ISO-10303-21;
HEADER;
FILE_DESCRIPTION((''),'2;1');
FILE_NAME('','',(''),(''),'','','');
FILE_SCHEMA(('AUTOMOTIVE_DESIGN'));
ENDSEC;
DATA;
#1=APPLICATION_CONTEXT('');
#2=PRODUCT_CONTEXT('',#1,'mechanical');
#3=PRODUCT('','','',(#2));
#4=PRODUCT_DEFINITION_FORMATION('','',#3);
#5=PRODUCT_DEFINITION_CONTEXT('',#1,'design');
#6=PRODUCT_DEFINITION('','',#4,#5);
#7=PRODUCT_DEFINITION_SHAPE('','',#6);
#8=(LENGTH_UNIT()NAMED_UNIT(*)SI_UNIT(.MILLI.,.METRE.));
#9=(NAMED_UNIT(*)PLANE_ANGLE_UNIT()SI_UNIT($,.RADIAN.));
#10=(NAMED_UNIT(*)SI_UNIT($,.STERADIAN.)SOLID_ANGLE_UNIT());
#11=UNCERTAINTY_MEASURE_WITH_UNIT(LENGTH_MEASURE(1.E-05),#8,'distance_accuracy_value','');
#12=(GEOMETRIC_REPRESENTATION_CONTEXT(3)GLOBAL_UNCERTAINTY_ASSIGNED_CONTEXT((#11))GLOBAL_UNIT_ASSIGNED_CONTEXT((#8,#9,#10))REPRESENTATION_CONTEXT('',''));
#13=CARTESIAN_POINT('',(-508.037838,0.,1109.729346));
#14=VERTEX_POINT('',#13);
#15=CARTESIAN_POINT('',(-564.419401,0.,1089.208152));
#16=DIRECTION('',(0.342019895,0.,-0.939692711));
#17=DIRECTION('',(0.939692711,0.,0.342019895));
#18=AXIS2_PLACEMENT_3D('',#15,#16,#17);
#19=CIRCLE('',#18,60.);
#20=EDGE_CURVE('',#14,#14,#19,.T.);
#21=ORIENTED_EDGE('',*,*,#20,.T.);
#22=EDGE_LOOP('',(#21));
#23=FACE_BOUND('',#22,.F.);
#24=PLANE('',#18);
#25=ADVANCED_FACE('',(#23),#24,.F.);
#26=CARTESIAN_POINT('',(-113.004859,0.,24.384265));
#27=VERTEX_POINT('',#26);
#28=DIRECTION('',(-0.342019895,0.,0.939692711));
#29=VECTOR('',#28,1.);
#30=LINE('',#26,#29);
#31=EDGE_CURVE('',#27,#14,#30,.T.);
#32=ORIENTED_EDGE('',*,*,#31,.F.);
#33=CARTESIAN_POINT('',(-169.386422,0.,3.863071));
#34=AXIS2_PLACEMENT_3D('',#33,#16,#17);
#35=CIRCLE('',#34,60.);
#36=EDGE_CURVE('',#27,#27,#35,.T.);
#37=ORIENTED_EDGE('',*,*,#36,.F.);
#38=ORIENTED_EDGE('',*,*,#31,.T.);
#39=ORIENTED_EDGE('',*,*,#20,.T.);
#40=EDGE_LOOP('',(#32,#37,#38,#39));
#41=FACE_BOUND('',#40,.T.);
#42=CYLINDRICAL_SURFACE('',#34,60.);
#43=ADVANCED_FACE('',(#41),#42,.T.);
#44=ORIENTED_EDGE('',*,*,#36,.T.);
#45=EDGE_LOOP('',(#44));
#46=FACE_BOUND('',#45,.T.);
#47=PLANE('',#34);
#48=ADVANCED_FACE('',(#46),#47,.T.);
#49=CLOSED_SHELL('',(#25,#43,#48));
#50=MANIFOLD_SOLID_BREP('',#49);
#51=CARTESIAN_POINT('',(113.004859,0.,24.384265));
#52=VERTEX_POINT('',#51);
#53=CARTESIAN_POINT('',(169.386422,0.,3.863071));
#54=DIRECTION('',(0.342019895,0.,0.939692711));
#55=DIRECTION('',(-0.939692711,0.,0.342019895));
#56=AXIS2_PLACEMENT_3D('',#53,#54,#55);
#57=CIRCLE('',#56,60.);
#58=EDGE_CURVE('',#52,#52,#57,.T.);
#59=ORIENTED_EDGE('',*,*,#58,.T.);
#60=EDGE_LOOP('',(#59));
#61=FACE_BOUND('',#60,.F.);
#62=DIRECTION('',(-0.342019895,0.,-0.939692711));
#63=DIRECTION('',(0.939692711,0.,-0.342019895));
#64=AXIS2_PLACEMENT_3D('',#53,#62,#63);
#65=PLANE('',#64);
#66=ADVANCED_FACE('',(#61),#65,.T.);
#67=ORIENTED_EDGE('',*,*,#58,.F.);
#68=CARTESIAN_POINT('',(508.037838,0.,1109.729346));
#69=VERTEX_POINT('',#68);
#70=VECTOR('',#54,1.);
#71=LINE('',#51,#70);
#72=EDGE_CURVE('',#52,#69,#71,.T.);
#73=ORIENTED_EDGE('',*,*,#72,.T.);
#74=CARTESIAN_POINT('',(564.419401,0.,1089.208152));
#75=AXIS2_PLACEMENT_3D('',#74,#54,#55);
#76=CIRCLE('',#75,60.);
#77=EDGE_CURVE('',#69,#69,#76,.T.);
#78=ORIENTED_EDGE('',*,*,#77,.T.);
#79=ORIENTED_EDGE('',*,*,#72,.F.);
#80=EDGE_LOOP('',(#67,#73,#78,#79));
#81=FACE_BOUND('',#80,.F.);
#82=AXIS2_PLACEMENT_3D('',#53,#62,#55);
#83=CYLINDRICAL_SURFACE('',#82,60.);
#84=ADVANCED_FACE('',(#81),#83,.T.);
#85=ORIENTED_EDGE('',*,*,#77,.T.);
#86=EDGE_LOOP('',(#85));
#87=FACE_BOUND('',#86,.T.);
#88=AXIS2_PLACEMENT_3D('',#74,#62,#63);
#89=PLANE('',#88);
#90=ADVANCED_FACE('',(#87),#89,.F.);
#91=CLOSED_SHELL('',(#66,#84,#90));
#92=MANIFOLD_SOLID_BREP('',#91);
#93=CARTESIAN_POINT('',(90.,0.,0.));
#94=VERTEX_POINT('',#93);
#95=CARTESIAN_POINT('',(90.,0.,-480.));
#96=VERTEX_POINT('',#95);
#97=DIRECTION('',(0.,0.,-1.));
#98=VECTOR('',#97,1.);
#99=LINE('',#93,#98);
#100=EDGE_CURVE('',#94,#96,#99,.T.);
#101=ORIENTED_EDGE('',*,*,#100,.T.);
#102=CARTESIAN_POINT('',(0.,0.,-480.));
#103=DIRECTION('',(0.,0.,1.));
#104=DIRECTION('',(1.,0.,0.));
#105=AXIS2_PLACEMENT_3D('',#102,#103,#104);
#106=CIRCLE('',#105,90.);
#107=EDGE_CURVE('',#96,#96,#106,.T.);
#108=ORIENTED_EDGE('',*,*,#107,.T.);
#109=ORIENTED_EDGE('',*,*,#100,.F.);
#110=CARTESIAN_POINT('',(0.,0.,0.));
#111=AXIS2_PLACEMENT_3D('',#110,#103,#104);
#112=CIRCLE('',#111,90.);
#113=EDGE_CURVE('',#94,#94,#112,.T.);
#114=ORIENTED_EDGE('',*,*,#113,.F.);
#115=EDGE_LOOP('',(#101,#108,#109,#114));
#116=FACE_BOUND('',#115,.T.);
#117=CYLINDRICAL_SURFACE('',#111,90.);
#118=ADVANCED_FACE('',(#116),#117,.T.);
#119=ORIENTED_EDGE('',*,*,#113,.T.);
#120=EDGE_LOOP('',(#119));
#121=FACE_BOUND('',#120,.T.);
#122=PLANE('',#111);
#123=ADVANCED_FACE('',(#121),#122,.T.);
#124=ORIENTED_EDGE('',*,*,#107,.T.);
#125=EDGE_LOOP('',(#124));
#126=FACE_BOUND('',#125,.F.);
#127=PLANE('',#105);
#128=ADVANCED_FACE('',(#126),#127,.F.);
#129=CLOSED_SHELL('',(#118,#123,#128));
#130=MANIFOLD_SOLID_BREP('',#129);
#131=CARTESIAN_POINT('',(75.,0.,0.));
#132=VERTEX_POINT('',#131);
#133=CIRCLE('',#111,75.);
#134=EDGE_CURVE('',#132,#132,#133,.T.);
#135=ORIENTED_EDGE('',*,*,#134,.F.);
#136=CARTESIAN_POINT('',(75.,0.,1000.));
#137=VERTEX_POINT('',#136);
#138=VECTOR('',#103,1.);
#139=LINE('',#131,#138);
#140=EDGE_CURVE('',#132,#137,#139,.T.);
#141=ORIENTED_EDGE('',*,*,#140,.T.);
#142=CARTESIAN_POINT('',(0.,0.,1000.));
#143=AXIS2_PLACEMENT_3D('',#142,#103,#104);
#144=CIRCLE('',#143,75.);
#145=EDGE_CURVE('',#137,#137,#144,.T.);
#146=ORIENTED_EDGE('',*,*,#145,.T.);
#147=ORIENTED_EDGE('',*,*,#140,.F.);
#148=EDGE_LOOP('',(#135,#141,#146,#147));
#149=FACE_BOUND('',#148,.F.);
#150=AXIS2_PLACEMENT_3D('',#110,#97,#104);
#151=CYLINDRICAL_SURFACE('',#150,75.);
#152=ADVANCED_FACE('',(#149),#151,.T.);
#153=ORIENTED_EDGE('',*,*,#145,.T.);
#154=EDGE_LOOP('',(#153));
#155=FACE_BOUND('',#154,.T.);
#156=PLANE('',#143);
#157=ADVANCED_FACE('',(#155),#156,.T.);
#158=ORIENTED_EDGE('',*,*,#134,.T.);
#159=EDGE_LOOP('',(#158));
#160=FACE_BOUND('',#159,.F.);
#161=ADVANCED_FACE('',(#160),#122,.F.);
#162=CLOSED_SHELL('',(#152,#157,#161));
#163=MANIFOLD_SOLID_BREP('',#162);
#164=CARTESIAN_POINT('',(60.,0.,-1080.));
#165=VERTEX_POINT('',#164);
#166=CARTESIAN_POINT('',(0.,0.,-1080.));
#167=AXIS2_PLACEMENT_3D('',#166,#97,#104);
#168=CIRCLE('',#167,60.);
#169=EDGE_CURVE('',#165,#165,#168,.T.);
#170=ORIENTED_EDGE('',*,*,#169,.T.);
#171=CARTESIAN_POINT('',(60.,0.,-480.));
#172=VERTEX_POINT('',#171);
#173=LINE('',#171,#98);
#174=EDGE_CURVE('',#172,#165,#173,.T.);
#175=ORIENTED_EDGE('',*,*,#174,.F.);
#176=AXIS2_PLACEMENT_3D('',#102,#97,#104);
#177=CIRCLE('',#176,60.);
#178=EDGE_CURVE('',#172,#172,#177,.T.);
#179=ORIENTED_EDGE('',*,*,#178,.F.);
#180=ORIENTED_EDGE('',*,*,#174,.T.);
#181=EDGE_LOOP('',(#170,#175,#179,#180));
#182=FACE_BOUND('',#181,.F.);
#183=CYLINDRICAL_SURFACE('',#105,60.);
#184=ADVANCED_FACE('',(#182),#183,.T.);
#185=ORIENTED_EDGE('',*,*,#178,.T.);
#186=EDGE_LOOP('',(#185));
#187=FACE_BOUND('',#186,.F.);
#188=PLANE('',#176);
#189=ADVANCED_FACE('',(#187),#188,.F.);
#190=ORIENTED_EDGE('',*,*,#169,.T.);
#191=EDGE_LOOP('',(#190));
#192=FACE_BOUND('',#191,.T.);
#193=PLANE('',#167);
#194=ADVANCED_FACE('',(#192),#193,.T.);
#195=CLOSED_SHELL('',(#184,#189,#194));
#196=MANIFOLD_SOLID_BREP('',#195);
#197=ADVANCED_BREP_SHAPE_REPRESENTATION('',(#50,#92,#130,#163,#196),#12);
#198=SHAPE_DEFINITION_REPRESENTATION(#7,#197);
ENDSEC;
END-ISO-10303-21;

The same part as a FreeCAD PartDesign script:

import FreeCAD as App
import Part
import Sketcher

doc = App.newDocument("Part")
body = doc.addObject("PartDesign::Body", "Body")

# Sketch on XY plane
sketch1 = doc.addObject("Sketcher::SketchObject", "Sketch")
body.addObject(sketch1)
sketch1.AttachmentSupport = (doc.XY_Plane, [""])
sketch1.MapMode = "FlatFace"
sketch1.addGeometry(Part.Circle(App.Vector(0, 0, 0), App.Vector(0, 0, 1), 75), False)
sketch1.addConstraint(Sketcher.Constraint("Coincident", 0, 3, -1, 1))
sketch1.addConstraint(Sketcher.Constraint("Diameter", 0, 150.0))
pad1 = doc.addObject("PartDesign::Pad", "Pad")
body.addObject(pad1)
pad1.Profile = sketch1
pad1.Length = 1000
body2 = doc.addObject("PartDesign::Body", "Body001")

# Sketch on XY plane
sketch2 = doc.addObject("Sketcher::SketchObject", "Sketch001")
body2.addObject(sketch2)
sketch2.AttachmentSupport = (doc.getObject("XY_Plane001"), [""])
sketch2.MapMode = "FlatFace"
sketch2.addGeometry(Part.Circle(App.Vector(0, 0, 0), App.Vector(0, 0, 1), 90), False)
sketch2.addConstraint(Sketcher.Constraint("Coincident", 0, 3, -1, 1))
sketch2.addConstraint(Sketcher.Constraint("Diameter", 0, 180.0))
pad2 = doc.addObject("PartDesign::Pad", "Pad001")
body2.addObject(pad2)
pad2.Profile = sketch2
pad2.Length = 480
pad2.Reversed = True
body3 = doc.addObject("PartDesign::Body", "Body002")

# Sketch on an angled plane
sketch3 = doc.addObject("Sketcher::SketchObject", "Sketch002")
body3.addObject(sketch3)
sketch3.Placement = App.Placement(App.Vector(-21.056, 0, 57.850885), App.Rotation(App.Vector(0.939692711, 0, 0.342019895), App.Vector(0, -1, 0), App.Vector(0.342019895, 0, -0.939692711), "ZXY"))
sketch3.addGeometry(Part.Circle(App.Vector(-158, 0, 0), App.Vector(0, 0, 1), 60), False)
sketch3.addConstraint(Sketcher.Constraint("PointOnObject", 0, 3, -1))
sketch3.addConstraint(Sketcher.Constraint("Diameter", 0, 120.0))
sketch3.addConstraint(Sketcher.Constraint("DistanceX", 0, 3, -1, 1, 157.849923))
pad3 = doc.addObject("PartDesign::Pad", "Pad002")
body3.addObject(pad3)
pad3.Profile = sketch3
pad3.Length = 1155
pad3.Reversed = True
body4 = doc.addObject("PartDesign::Body", "Body003")
doc.recompute()

mirroring = doc.addObject("Part::Mirroring", "Mirroring")
mirroring.Source = body3
mirroring.Base = App.Vector(0, 0, 0)
mirroring.Normal = App.Vector(1, 0, 0)
body4.BaseFeature = mirroring
doc.recompute()
body5 = doc.addObject("PartDesign::Body", "Body004")

# Sketch on XY plane
sketch4 = doc.addObject("Sketcher::SketchObject", "Sketch003")
body5.addObject(sketch4)
sketch4.AttachmentSupport = (doc.getObject("XY_Plane004"), [""])
sketch4.MapMode = "FlatFace"
sketch4.AttachmentOffset = App.Placement(App.Vector(0, 0, -480), App.Rotation())
sketch4.addGeometry(Part.Circle(App.Vector(0, 0, 0), App.Vector(0, 0, 1), 60), False)
sketch4.addConstraint(Sketcher.Constraint("Coincident", 0, 3, -1, 1))
sketch4.addConstraint(Sketcher.Constraint("Diameter", 0, 120.0))
pad4 = doc.addObject("PartDesign::Pad", "Pad003")
body5.addObject(pad4)
pad4.Profile = sketch4
pad4.Length = 600
pad4.Reversed = True
mirroring.Visibility = False

doc.recompute()
